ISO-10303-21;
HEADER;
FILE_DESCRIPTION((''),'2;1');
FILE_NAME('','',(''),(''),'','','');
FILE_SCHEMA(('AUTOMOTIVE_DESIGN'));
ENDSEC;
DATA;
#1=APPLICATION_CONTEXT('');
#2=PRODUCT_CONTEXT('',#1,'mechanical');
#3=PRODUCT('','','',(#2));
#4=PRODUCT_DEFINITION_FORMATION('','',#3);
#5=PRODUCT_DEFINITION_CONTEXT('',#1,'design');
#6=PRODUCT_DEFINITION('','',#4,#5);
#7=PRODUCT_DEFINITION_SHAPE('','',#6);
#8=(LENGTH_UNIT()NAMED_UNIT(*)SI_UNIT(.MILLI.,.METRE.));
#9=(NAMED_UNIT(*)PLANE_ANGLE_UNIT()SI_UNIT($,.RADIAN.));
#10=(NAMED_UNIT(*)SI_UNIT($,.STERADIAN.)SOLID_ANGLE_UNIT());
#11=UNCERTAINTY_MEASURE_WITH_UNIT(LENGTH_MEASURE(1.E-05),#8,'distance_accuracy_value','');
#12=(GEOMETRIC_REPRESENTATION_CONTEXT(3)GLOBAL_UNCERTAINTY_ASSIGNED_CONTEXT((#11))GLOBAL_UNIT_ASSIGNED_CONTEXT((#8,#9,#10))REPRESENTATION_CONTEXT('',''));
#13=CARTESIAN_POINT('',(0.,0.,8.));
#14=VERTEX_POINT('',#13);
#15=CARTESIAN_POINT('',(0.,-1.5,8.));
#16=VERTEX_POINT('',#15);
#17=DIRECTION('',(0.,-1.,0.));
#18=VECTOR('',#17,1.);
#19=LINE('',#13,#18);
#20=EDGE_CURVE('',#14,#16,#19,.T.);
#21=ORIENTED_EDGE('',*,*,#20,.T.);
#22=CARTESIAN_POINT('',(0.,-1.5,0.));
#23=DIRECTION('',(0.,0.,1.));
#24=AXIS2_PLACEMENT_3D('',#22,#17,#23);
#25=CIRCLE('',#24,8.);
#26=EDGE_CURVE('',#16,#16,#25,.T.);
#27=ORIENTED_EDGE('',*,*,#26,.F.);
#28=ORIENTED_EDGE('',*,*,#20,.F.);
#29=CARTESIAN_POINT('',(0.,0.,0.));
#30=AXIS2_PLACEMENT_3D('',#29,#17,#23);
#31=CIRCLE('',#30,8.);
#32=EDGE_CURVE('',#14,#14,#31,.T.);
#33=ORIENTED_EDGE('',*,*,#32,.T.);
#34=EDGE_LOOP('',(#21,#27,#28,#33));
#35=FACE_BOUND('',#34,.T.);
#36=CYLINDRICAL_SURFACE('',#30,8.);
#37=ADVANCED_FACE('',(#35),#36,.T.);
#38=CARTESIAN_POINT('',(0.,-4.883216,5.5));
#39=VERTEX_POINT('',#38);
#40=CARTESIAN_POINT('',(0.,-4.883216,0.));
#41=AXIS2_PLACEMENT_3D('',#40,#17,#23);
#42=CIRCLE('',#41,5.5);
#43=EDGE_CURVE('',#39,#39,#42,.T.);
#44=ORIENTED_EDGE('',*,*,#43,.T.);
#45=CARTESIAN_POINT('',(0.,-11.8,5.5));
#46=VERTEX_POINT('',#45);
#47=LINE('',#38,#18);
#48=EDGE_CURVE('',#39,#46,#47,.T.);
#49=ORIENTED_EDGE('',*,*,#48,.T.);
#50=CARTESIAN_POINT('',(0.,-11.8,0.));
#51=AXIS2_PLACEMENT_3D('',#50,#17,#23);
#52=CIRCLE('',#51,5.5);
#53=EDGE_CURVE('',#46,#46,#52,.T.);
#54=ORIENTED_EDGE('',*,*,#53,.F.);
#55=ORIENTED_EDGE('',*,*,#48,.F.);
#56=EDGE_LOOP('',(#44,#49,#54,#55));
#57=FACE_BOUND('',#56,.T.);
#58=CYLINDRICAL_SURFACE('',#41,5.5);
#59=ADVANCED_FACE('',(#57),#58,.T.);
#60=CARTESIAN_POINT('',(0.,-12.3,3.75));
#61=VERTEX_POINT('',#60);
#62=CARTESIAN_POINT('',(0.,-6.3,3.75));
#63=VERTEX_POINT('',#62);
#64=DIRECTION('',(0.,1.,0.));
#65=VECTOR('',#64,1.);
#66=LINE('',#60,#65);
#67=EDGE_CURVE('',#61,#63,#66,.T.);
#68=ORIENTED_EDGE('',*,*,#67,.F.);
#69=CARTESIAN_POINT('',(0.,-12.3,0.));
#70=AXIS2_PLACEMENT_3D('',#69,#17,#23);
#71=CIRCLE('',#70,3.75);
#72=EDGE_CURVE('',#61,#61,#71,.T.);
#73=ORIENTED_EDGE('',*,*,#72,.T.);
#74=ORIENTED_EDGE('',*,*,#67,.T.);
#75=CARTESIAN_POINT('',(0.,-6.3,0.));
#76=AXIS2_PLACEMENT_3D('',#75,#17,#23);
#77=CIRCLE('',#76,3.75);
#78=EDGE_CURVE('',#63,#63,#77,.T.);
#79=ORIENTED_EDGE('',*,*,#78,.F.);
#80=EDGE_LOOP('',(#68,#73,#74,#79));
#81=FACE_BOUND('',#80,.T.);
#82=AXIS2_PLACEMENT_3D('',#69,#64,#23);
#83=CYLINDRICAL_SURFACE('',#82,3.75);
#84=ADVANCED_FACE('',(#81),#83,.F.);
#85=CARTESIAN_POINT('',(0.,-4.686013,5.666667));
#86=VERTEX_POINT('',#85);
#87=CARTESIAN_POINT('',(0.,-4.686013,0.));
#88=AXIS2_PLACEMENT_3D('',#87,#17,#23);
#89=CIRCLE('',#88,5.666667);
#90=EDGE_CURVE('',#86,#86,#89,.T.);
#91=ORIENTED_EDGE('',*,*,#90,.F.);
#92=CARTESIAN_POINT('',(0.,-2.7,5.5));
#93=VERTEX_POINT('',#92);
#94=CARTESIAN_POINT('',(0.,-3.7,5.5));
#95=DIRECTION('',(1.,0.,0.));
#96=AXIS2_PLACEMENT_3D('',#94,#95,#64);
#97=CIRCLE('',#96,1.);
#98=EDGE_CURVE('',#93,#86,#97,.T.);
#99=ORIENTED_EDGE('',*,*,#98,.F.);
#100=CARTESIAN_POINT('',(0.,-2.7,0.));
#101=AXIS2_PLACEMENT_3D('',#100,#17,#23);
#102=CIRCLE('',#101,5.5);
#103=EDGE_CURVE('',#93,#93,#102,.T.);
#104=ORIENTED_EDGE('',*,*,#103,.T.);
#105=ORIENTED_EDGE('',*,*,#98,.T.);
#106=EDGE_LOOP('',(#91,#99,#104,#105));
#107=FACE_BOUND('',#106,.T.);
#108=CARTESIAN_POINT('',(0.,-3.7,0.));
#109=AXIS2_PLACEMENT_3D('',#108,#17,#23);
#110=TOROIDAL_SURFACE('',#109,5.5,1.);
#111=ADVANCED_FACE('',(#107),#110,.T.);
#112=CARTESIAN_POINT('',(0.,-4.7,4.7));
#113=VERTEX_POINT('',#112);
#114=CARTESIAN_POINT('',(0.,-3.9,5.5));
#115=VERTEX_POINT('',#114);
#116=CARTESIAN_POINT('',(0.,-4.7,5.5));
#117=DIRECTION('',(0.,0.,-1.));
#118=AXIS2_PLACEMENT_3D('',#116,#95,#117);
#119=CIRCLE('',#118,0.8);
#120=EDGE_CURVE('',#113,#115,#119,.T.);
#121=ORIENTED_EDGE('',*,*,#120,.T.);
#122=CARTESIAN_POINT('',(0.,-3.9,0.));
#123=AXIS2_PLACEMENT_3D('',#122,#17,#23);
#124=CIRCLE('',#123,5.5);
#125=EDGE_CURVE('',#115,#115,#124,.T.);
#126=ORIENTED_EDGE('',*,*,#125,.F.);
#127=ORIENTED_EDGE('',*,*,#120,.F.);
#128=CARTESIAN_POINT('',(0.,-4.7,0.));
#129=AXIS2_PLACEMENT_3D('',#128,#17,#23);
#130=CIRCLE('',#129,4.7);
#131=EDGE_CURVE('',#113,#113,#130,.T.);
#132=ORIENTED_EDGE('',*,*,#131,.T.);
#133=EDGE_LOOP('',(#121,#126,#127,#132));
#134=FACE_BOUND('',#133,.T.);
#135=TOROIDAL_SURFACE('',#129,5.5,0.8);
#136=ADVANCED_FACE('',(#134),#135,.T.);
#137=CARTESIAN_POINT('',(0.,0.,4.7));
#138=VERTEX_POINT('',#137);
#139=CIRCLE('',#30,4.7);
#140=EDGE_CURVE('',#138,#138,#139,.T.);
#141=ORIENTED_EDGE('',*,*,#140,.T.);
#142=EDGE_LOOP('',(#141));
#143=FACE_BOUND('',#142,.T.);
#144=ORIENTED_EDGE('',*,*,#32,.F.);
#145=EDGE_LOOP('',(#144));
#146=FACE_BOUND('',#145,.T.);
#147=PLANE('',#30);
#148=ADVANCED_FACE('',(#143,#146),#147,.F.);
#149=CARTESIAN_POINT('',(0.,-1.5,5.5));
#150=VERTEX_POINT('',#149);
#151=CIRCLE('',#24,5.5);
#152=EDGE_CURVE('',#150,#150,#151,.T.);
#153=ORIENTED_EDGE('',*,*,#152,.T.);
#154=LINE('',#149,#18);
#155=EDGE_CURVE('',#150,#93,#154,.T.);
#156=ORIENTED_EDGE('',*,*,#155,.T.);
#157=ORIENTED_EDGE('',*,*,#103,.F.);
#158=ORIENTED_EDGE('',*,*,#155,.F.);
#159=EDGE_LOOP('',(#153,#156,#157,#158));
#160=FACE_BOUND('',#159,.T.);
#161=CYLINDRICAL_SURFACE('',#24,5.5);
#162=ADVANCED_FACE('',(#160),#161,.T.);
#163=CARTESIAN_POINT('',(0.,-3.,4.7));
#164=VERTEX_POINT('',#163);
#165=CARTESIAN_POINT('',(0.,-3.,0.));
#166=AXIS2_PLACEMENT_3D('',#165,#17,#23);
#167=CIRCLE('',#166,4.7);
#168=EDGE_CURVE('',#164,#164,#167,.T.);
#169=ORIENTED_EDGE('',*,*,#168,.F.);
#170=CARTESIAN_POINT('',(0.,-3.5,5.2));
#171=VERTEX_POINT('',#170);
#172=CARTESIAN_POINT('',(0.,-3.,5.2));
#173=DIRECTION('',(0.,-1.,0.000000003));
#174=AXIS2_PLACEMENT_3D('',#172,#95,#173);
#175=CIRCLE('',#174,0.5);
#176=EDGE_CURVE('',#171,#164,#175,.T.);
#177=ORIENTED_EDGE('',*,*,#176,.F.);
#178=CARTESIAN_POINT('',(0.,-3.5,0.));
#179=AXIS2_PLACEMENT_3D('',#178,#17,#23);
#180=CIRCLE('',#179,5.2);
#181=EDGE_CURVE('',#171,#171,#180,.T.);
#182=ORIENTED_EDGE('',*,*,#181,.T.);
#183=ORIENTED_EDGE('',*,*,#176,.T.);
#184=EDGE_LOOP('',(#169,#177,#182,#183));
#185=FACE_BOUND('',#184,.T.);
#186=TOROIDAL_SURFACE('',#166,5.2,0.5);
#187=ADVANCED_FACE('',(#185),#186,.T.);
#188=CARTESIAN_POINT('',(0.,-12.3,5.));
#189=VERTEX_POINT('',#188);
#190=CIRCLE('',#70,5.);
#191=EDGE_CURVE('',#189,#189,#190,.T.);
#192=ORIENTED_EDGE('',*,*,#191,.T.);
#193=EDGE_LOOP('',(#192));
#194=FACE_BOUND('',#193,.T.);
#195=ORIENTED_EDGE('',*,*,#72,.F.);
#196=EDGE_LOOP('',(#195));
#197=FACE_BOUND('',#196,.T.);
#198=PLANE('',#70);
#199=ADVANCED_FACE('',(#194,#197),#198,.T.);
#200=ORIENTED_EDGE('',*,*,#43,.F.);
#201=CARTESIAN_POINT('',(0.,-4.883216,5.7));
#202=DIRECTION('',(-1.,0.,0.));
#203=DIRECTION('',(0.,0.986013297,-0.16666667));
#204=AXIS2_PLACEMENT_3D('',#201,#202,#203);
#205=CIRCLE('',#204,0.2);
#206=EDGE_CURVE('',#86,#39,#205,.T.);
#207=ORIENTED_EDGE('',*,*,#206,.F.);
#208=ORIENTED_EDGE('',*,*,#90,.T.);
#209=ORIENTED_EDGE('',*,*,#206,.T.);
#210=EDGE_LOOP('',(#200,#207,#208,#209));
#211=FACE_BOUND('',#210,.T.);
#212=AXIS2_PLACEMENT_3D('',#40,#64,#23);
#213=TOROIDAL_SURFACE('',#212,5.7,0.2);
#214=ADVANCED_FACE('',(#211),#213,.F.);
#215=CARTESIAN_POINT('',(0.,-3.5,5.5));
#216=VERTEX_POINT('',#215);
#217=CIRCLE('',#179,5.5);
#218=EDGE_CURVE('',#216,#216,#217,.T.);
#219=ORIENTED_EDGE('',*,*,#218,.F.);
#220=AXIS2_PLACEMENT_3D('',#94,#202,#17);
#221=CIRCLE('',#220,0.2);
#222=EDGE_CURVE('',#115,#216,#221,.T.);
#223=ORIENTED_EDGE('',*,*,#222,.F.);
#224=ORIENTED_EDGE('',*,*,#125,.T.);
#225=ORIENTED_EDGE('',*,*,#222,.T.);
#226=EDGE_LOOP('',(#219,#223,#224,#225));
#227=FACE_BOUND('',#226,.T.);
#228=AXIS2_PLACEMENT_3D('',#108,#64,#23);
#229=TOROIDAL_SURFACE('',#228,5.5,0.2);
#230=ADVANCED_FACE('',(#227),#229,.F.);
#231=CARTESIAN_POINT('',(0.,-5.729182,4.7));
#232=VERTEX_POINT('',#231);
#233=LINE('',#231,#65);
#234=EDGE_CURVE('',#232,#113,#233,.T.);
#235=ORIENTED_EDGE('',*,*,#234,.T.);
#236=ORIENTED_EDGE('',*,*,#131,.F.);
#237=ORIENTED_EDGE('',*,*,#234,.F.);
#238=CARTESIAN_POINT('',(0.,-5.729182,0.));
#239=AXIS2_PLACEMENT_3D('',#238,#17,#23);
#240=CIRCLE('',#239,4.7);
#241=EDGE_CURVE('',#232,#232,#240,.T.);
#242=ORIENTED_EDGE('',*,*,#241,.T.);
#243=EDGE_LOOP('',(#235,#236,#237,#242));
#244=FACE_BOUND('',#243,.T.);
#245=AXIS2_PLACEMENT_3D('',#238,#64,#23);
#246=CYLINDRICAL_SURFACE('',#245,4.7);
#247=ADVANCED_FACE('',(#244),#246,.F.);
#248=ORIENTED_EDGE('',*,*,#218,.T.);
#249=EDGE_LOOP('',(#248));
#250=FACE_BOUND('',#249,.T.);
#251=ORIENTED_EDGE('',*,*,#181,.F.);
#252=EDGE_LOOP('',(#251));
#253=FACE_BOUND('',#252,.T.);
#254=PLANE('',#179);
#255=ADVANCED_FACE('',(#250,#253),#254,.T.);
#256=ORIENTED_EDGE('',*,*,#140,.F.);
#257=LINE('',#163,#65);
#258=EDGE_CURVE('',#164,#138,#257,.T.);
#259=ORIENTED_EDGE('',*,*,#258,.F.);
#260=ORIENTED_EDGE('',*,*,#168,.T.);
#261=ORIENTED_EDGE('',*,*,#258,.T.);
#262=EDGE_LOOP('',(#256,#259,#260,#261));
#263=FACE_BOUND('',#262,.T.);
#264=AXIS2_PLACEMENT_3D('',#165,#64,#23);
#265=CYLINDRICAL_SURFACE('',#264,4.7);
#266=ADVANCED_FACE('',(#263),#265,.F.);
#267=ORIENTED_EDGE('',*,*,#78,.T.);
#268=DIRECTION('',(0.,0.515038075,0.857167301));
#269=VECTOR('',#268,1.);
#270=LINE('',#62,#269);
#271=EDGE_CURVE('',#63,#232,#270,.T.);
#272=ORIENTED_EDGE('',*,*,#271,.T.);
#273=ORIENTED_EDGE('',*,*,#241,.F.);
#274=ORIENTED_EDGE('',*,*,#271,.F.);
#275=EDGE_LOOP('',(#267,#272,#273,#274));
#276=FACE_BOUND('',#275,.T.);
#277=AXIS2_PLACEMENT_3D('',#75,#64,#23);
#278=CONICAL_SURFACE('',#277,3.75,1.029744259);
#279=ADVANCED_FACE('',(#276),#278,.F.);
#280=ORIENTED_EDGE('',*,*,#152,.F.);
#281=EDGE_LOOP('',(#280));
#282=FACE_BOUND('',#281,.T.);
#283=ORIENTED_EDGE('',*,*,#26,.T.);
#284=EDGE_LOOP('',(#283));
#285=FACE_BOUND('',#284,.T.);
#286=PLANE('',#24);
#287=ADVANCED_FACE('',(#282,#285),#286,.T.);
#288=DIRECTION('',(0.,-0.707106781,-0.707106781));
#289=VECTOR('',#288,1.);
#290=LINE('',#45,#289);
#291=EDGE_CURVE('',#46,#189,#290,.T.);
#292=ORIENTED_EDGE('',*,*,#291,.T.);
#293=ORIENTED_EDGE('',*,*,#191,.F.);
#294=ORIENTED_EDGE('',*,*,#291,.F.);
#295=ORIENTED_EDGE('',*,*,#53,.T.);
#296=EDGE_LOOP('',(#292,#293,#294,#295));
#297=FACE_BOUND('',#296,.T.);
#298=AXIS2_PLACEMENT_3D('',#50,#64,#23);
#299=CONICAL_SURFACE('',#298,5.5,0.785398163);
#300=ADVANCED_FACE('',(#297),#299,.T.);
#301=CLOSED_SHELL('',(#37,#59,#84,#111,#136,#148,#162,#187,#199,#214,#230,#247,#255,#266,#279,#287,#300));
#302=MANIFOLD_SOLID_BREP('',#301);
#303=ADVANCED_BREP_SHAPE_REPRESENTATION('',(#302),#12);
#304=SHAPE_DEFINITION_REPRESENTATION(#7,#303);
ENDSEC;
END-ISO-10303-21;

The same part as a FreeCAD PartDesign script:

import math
import FreeCAD as App
import Part
import Sketcher
from FreeCAD import Vector
Q = App.Units.Quantity

doc = App.newDocument("Part")
body = doc.addObject("PartDesign::Body", "Body")

sketch1 = body.newObject("Sketcher::SketchObject", "Sketch")
sketch1.AttachmentSupport = (doc.getObject("YZ_Plane"), [""])
sketch1.MapMode = "FlatFace"
sketch1.addGeometry([
    Part.LineSegment(Vector(0, -8, 0), Vector(0, -4.7, 0)),
    Part.LineSegment(Vector(0, -4.7, 0), Vector(-3, -4.7, 0)),
    Part.ArcOfCircle(Part.Circle(Vector(-3, -5.2, 0), Vector(0, 0, 1), 0.5), math.radians(90), math.radians(180)),
    Part.LineSegment(Vector(-3.5, -5.2, 0), Vector(-3.5, -5.5, 0)),
    Part.ArcOfCircle(Part.Circle(Vector(-3.7, -5.5, 0), Vector(0, 0, 1), 0.2), math.radians(180), math.radians(360)),
    Part.ArcOfCircle(Part.Circle(Vector(-4.7, -5.5, 0), Vector(0, 0, 1), 0.8), math.radians(0), math.radians(90)),
    Part.LineSegment(Vector(-4.7, -4.7, 0), Vector(-5.73, -4.7, 0)),
    Part.LineSegment(Vector(-5.73, -4.7, 0), Vector(-6.3, -3.75, 0)),
    Part.LineSegment(Vector(-6.3, -3.75, 0), Vector(-12.3, -3.75, 0)),
    Part.LineSegment(Vector(-12.3, -3.75, 0), Vector(-12.3, -5, 0)),
    Part.LineSegment(Vector(-12.3, -5, 0), Vector(-11.8, -5.5, 0)),
    Part.LineSegment(Vector(-11.8, -5.5, 0), Vector(-4.88, -5.5, 0)),
    Part.ArcOfCircle(Part.Circle(Vector(-4.88, -5.7, 0), Vector(0, 0, 1), 0.2), math.radians(10), math.radians(90)),
    Part.ArcOfCircle(Part.Circle(Vector(-3.7, -5.5, 0), Vector(0, 0, 1), 1), math.radians(-170), math.radians(0)),
    Part.LineSegment(Vector(-2.7, -5.5, 0), Vector(-1.5, -5.5, 0)),
    Part.LineSegment(Vector(-1.5, -5.5, 0), Vector(-1.5, -8, 0)),
    Part.LineSegment(Vector(-1.5, -8, 0), Vector(0, -8, 0)),
], False)
sketch1.addConstraint([
    Sketcher.Constraint("Coincident", 0, 2, 1, 1),
    Sketcher.Constraint("Tangent", 1, 2, 2, 1),
    Sketcher.Constraint("Tangent", 2, 2, 3, 1),
    Sketcher.Constraint("Tangent", 3, 2, 4, 2),
    Sketcher.Constraint("Tangent", 4, 1, 5, 1),
    Sketcher.Constraint("Tangent", 5, 2, 6, 1),
    Sketcher.Constraint("Coincident", 6, 2, 7, 1),
    Sketcher.Constraint("Coincident", 7, 2, 8, 1),
    Sketcher.Constraint("Coincident", 8, 2, 9, 1),
    Sketcher.Constraint("Coincident", 9, 2, 10, 1),
    Sketcher.Constraint("Coincident", 10, 2, 11, 1),
    Sketcher.Constraint("Tangent", 11, 2, 12, 2),
    Sketcher.Constraint("Tangent", 12, 1, 13, 1),
    Sketcher.Constraint("Coincident", 13, 2, 14, 1),
    Sketcher.Constraint("Coincident", 14, 2, 15, 1),
    Sketcher.Constraint("Coincident", 15, 2, 16, 1),
    Sketcher.Constraint("Coincident", 16, 2, 0, 1),
    Sketcher.Constraint("Vertical", 0),
    Sketcher.Constraint("Horizontal", 1),
    Sketcher.Constraint("Vertical", 3),
    Sketcher.Constraint("Horizontal", 6),
    Sketcher.Constraint("Horizontal", 8),
    Sketcher.Constraint("Vertical", 9),
    Sketcher.Constraint("Horizontal", 11),
    Sketcher.Constraint("Horizontal", 14),
    Sketcher.Constraint("Vertical", 15),
    Sketcher.Constraint("Horizontal", 16),
    Sketcher.Constraint("Coincident", 13, 3, 4, 3),
    Sketcher.Constraint("Equal", 4, 12),
    Sketcher.Constraint("PointOnObject", 0, 2, -2),
    Sketcher.Constraint("Horizontal", 4, 3, 5, 3),
    Sketcher.Constraint("Horizontal", 1, 2, 5, 2),
    Sketcher.Constraint("Horizontal", 4, 1, 10, 2),
    Sketcher.Constraint("Horizontal", 11, 2, 13, 2),
    Sketcher.Constraint("Radius", 13, 1.0),
    Sketcher.Constraint("Radius", 2, 0.5),
    Sketcher.Constraint("Radius", 4, 0.2),
    Sketcher.Constraint("Radius", 5, 0.8),
    Sketcher.Constraint("DistanceX", 1, 2, 1, 1, 3.0),
    Sketcher.Constraint("DistanceX", 8, 2, 8, 1, 6.0),
    Sketcher.Constraint("Angle", 7, Q("121 deg")),
    Sketcher.Constraint("Angle", 10, Q("-45 deg")),
    Sketcher.Constraint("DistanceX", 14, 1, 14, 2, 1.2),
    Sketcher.Constraint("DistanceY", 0, 1, 0, 2, 3.3),
    Sketcher.Constraint("DistanceY", 9, 2, -1, 1, 5.0),
    Sketcher.Constraint("DistanceY", 15, 2, -1, 1, 8.0),
    Sketcher.Constraint("DistanceY", 9, 2, 9, 1, 1.25),
    Sketcher.Constraint("DistanceX", 7, 2, -1, 1, 6.3),
])
revolution = body.newObject("PartDesign::Revolution", "Revolution")
revolution.Profile = sketch1
revolution.ReferenceAxis = (sketch1, ["H_Axis"])
revolution.Angle = 360

doc.recompute()
